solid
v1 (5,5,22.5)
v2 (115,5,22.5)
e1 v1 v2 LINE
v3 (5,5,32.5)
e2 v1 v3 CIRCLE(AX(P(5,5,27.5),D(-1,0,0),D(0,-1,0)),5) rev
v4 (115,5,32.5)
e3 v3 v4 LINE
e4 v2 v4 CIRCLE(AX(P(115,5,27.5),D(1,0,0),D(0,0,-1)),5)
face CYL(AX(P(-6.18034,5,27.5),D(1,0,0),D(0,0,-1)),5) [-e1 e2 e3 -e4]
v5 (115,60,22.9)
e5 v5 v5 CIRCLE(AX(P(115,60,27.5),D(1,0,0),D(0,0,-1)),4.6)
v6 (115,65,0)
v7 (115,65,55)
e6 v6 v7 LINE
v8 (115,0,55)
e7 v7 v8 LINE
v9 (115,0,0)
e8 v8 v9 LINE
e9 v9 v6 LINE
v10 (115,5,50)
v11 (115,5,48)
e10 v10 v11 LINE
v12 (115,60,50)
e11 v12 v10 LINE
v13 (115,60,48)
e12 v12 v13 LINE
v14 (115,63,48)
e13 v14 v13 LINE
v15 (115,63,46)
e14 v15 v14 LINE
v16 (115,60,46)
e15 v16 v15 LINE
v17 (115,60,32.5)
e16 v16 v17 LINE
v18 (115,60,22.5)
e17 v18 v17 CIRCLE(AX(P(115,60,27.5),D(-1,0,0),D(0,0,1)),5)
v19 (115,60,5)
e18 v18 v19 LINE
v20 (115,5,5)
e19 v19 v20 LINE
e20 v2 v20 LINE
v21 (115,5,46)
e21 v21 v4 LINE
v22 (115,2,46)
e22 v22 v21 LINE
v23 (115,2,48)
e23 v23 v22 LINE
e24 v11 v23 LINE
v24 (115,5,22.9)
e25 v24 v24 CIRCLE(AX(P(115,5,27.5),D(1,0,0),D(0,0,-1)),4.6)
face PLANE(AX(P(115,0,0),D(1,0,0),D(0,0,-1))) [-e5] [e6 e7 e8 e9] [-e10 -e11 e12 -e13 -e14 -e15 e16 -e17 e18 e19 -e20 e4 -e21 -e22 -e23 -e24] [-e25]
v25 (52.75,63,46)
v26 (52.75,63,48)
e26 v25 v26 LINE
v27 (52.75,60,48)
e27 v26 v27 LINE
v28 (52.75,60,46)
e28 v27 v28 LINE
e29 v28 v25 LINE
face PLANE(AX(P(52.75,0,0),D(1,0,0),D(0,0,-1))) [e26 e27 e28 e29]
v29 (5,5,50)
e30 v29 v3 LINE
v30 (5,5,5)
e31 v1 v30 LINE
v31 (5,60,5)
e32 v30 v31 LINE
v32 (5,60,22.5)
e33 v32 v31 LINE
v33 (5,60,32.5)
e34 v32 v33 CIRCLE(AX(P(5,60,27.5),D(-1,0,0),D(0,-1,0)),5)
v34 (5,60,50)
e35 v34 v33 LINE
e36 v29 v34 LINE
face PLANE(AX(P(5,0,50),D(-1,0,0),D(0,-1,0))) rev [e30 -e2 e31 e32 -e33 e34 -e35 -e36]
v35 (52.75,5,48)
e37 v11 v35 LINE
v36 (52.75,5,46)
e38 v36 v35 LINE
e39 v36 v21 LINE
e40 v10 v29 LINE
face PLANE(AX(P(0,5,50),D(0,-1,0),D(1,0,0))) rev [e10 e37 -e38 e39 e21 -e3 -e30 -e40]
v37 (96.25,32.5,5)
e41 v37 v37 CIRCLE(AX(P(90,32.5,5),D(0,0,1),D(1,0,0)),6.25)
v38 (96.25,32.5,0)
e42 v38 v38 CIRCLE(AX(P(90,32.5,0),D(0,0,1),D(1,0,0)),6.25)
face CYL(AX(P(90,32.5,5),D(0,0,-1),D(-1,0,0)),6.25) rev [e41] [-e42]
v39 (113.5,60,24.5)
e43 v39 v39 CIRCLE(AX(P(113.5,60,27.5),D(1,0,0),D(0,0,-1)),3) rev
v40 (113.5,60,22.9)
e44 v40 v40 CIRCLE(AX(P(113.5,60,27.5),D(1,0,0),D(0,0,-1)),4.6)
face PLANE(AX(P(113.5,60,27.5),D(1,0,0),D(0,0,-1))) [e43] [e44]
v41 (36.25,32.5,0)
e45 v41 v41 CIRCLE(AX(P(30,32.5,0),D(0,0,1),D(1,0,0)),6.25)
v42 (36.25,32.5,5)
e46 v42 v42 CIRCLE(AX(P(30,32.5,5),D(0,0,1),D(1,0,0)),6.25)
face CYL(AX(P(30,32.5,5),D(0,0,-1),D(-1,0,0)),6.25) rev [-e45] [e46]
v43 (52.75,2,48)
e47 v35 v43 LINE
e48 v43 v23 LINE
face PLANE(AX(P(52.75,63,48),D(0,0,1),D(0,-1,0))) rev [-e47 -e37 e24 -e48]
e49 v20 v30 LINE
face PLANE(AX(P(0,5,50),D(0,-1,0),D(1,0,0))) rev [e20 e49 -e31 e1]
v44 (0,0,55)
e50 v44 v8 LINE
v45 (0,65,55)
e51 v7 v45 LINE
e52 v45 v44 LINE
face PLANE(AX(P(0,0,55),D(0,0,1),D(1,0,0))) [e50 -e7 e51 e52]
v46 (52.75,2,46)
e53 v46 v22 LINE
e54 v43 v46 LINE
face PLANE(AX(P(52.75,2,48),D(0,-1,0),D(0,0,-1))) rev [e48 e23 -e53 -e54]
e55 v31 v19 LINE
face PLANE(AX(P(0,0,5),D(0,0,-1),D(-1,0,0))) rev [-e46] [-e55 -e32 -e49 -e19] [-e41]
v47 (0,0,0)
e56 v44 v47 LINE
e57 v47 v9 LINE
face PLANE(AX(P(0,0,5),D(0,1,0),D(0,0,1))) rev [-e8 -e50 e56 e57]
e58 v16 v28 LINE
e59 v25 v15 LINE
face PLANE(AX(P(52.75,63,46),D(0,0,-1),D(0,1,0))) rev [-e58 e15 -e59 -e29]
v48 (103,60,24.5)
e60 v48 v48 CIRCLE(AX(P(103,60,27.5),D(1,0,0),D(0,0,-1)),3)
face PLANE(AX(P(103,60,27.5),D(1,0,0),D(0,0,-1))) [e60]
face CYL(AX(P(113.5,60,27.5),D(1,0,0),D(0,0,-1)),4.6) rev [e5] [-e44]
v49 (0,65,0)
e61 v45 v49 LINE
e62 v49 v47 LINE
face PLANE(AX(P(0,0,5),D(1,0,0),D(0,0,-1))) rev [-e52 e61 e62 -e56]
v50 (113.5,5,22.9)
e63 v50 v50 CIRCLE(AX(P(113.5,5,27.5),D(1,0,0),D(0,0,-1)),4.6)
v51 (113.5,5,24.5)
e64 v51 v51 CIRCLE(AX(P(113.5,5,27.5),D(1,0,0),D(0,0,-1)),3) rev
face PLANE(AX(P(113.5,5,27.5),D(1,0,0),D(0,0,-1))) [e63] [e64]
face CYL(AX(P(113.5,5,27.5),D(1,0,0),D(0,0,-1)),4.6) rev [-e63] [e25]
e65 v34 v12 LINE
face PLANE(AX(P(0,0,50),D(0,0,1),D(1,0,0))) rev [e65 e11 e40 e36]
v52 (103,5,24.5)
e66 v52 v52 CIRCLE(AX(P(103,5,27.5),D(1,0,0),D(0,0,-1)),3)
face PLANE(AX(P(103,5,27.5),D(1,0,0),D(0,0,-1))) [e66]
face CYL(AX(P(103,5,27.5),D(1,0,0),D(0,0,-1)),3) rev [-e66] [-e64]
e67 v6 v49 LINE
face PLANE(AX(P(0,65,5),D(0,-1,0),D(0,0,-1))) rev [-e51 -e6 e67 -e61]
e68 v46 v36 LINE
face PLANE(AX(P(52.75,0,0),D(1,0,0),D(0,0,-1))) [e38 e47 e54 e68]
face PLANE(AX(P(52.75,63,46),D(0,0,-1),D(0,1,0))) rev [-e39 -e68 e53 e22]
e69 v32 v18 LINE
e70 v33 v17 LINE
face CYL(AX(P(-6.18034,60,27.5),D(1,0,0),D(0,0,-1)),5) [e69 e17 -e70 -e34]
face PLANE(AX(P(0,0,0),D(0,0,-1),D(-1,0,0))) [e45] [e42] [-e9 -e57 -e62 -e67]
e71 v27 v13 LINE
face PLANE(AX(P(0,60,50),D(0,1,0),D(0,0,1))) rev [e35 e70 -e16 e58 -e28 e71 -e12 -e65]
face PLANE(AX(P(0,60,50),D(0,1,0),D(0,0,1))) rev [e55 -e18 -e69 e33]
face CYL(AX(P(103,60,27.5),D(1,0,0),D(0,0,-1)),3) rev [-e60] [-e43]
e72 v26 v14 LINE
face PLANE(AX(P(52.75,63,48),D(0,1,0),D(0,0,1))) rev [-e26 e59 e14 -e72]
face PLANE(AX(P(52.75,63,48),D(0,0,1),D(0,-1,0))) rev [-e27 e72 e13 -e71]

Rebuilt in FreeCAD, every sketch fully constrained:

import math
import FreeCAD as App
import Part
import Sketcher

V = App.Vector


def add_polygon(sketch, points):
    """Adds a closed chain of lines whose ends are joined by coincident constraints."""
    first, n = sketch.GeometryCount, len(points)
    for a, b in zip(points, points[1:] + points[:1]):
        sketch.addGeometry(Part.LineSegment(App.Vector(*a, 0), App.Vector(*b, 0)), False)
    for i in range(n):
        sketch.addConstraint(Sketcher.Constraint("Coincident", first + i, 2, first + (i + 1) % n, 1))

doc = App.newDocument("Part")
body = doc.addObject("PartDesign::Body", "Body")

# Sketch on XY plane
sketch1 = body.newObject("Sketcher::SketchObject", "Sketch")
sketch1.AttachmentSupport = (doc.getObject("XY_Plane"), [""])
sketch1.MapMode = "FlatFace"
add_polygon(sketch1, [(0, 65), (0, 0), (120, 0), (120, 65)])  # lines 0-3
sketch1.addGeometry(Part.Circle(V(30, 32, 0), V(0, 0, 1), 6), False)  # 4
sketch1.addGeometry(Part.Circle(V(90, 32, 0), V(0, 0, 1), 6), False)  # 5
sketch1.addConstraint(Sketcher.Constraint("Vertical", 0))
sketch1.addConstraint(Sketcher.Constraint("Horizontal", 1))
sketch1.addConstraint(Sketcher.Constraint("Vertical", 2))
sketch1.addConstraint(Sketcher.Constraint("Horizontal", 3))
sketch1.addConstraint(Sketcher.Constraint("Coincident", 0, 2, -1, 1))
sketch1.addConstraint(Sketcher.Constraint("Equal", 4, 5))
sketch1.addConstraint(Sketcher.Constraint("Horizontal", 4, 3, 5, 3))
sketch1.addConstraint(Sketcher.Constraint("Diameter", 4, 12.5))
sketch1.addConstraint(Sketcher.Constraint("DistanceX", 1, 1, 1, 2, 120.0))
sketch1.addConstraint(Sketcher.Constraint("DistanceY", 0, 2, 0, 1, 65.0))
sketch1.addConstraint(Sketcher.Constraint("DistanceX", -1, 1, 4, 3, 30.0))
sketch1.addConstraint(Sketcher.Constraint("DistanceX", -1, 1, 5, 3, 90.0))
sketch1.addConstraint(Sketcher.Constraint("DistanceY", -1, 1, 4, 3, 32.5))
pad1 = body.newObject("PartDesign::Pad", "Pad")
pad1.Profile = sketch1
pad1.Length = 5

# Sketch on XY plane
sketch2 = body.newObject("Sketcher::SketchObject", "Sketch001")
sketch2.AttachmentSupport = (doc.getObject("XY_Plane"), [""])
sketch2.MapMode = "FlatFace"
sketch2.AttachmentOffset = App.Placement(V(0, 0, 5), App.Rotation())
add_polygon(sketch2, [(0, 65), (0, 0), (120, 0), (120, 65)])  # lines 0-3
add_polygon(sketch2, [(115, 5), (5, 5), (5, 60), (115, 60)])  # lines 4-7
sketch2.addConstraint(Sketcher.Constraint("Vertical", 0))
sketch2.addConstraint(Sketcher.Constraint("Horizontal", 1))
sketch2.addConstraint(Sketcher.Constraint("Vertical", 2))
sketch2.addConstraint(Sketcher.Constraint("Horizontal", 3))
sketch2.addConstraint(Sketcher.Constraint("Horizontal", 4))
sketch2.addConstraint(Sketcher.Constraint("Vertical", 5))
sketch2.addConstraint(Sketcher.Constraint("Horizontal", 6))
sketch2.addConstraint(Sketcher.Constraint("Vertical", 7))
sketch2.addConstraint(Sketcher.Constraint("Coincident", 0, 2, -1, 1))
sketch2.addConstraint(Sketcher.Constraint("DistanceX", 1, 1, 1, 2, 120.0))
sketch2.addConstraint(Sketcher.Constraint("DistanceX", 4, 2, 4, 1, 110.0))
sketch2.addConstraint(Sketcher.Constraint("DistanceY", 0, 2, 0, 1, 65.0))
sketch2.addConstraint(Sketcher.Constraint("DistanceY", 5, 1, 5, 2, 55.0))
sketch2.addConstraint(Sketcher.Constraint("DistanceX", -1, 1, 4, 2, 5.0))
sketch2.addConstraint(Sketcher.Constraint("DistanceY", -1, 1, 4, 2, 5.0))
pad2 = body.newObject("PartDesign::Pad", "Pad001")
pad2.Profile = sketch2
pad2.Length = 45

# Sketch on XY plane
sketch3 = body.newObject("Sketcher::SketchObject", "Sketch002")
sketch3.AttachmentSupport = (doc.getObject("XY_Plane"), [""])
sketch3.MapMode = "FlatFace"
sketch3.AttachmentOffset = App.Placement(V(0, 0, 50), App.Rotation())
add_polygon(sketch3, [(0, 65), (0, 0), (120, 0), (120, 65)])  # lines 0-3
sketch3.addConstraint(Sketcher.Constraint("Vertical", 0))
sketch3.addConstraint(Sketcher.Constraint("Horizontal", 1))
sketch3.addConstraint(Sketcher.Constraint("Vertical", 2))
sketch3.addConstraint(Sketcher.Constraint("Horizontal", 3))
sketch3.addConstraint(Sketcher.Constraint("Coincident", 0, 2, -1, 1))
sketch3.addConstraint(Sketcher.Constraint("DistanceX", 1, 1, 1, 2, 120.0))
sketch3.addConstraint(Sketcher.Constraint("DistanceY", 0, 2, 0, 1, 65.0))
pad3 = body.newObject("PartDesign::Pad", "Pad002")
pad3.Profile = sketch3
pad3.Length = 5

# Sketch on YZ plane
sketch4 = body.newObject("Sketcher::SketchObject", "Sketch003")
sketch4.AttachmentSupport = (doc.getObject("YZ_Plane"), [""])
sketch4.MapMode = "FlatFace"
sketch4.AttachmentOffset = App.Placement(V(0, 0, 120), App.Rotation())
add_polygon(sketch4, [(65, 55), (0, 55), (0, 0), (65, 0)])  # lines 0-3
sketch4.addConstraint(Sketcher.Constraint("Horizontal", 0))
sketch4.addConstraint(Sketcher.Constraint("Vertical", 1))
sketch4.addConstraint(Sketcher.Constraint("Horizontal", 2))
sketch4.addConstraint(Sketcher.Constraint("Vertical", 3))
sketch4.addConstraint(Sketcher.Constraint("Coincident", 1, 2, -1, 1))
sketch4.addConstraint(Sketcher.Constraint("DistanceX", 0, 2, 0, 1, 65.0))
sketch4.addConstraint(Sketcher.Constraint("DistanceY", 1, 2, 1, 1, 55.0))
pocket1 = body.newObject("PartDesign::Pocket", "Pocket")
pocket1.Profile = sketch4
pocket1.Length = 5

# Sketch on YZ plane
sketch5 = body.newObject("Sketcher::SketchObject", "Sketch004")
sketch5.AttachmentSupport = (doc.getObject("YZ_Plane"), [""])
sketch5.MapMode = "FlatFace"
sketch5.AttachmentOffset = App.Placement(V(0, 0, 115), App.Rotation())
add_polygon(sketch5, [(63, 48), (2, 48), (2, 46), (63, 46)])  # lines 0-3
sketch5.addConstraint(Sketcher.Constraint("Horizontal", 0))
sketch5.addConstraint(Sketcher.Constraint("Vertical", 1))
sketch5.addConstraint(Sketcher.Constraint("Horizontal", 2))
sketch5.addConstraint(Sketcher.Constraint("Vertical", 3))
sketch5.addConstraint(Sketcher.Constraint("DistanceX", 0, 2, 0, 1, 61.0))
sketch5.addConstraint(Sketcher.Constraint("DistanceY", 1, 2, 1, 1, 2.0))
sketch5.addConstraint(Sketcher.Constraint("DistanceX", -1, 1, 0, 2, 2.0))
sketch5.addConstraint(Sketcher.Constraint("DistanceY", -1, 1, 0, 2, 48.0))
pocket2 = body.newObject("PartDesign::Pocket", "Pocket001")
pocket2.Profile = sketch5
pocket2.Length = 62.25

# Sketch on YZ plane
sketch6 = body.newObject("Sketcher::SketchObject", "Sketch005")
sketch6.AttachmentSupport = (doc.getObject("YZ_Plane"), [""])
sketch6.MapMode = "FlatFace"
sketch6.AttachmentOffset = App.Placement(V(0, 0, 115), App.Rotation())
sketch6.addGeometry(Part.LineSegment(V(60, 22, 0), V(60, 32, 0)), False)
sketch6.addGeometry(Part.ArcOfCircle(Part.Circle(V(60, 28, 0), V(0, 0, 1), 5), math.radians(90), math.radians(270)), False)
sketch6.addGeometry(Part.LineSegment(V(5, 32, 0), V(5, 22, 0)), False)
sketch6.addGeometry(Part.ArcOfCircle(Part.Circle(V(5, 28, 0), V(0, 0, 1), 5), math.radians(-90), math.radians(90)), False)
sketch6.addConstraint(Sketcher.Constraint("Coincident", 0, 1, 1, 2))
sketch6.addConstraint(Sketcher.Constraint("Coincident", 1, 1, 0, 2))
sketch6.addConstraint(Sketcher.Constraint("Coincident", 2, 1, 3, 2))
sketch6.addConstraint(Sketcher.Constraint("Coincident", 3, 1, 2, 2))
sketch6.addConstraint(Sketcher.Constraint("Vertical", 0))
sketch6.addConstraint(Sketcher.Constraint("Vertical", 2))
sketch6.addConstraint(Sketcher.Constraint("Equal", 1, 3))
sketch6.addConstraint(Sketcher.Constraint("Horizontal", 1, 3, 3, 3))
sketch6.addConstraint(Sketcher.Constraint("Vertical", 1, 3, 0, 1))
sketch6.addConstraint(Sketcher.Constraint("Vertical", 3, 3, 2, 1))
sketch6.addConstraint(Sketcher.Constraint("Radius", 1, 5.0))
sketch6.addConstraint(Sketcher.Constraint("DistanceX", -1, 1, 1, 3, 60.0))
sketch6.addConstraint(Sketcher.Constraint("DistanceX", -1, 1, 3, 3, 5.0))
sketch6.addConstraint(Sketcher.Constraint("DistanceY", -1, 1, 1, 3, 27.5))
pad4 = body.newObject("PartDesign::Pad", "Pad003")
pad4.Profile = sketch6
pad4.Length = 110
pad4.Reversed = True

# Sketch on YZ plane
sketch7 = body.newObject("Sketcher::SketchObject", "Sketch006")
sketch7.AttachmentSupport = (doc.getObject("YZ_Plane"), [""])
sketch7.MapMode = "FlatFace"
sketch7.AttachmentOffset = App.Placement(V(0, 0, 115), App.Rotation())
sketch7.addGeometry(Part.Circle(V(60, 27.5, 0), V(0, 0, 1), 3), False)
sketch7.addGeometry(Part.Circle(V(5, 27.5, 0), V(0, 0, 1), 3), False)
sketch7.addConstraint(Sketcher.Constraint("Equal", 0, 1))
sketch7.addConstraint(Sketcher.Constraint("Horizontal", 0, 3, 1, 3))
sketch7.addConstraint(Sketcher.Constraint("Diameter", 0, 6.0))
sketch7.addConstraint(Sketcher.Constraint("DistanceX", -1, 1, 0, 3, 60.0))
sketch7.addConstraint(Sketcher.Constraint("DistanceX", -1, 1, 1, 3, 5.0))
sketch7.addConstraint(Sketcher.Constraint("DistanceY", -1, 1, 0, 3, 27.5))
pocket3 = body.newObject("PartDesign::Pocket", "Pocket002")
pocket3.Profile = sketch7
pocket3.Length = 12

# Sketch on YZ plane
sketch8 = body.newObject("Sketcher::SketchObject", "Sketch007")
sketch8.AttachmentSupport = (doc.getObject("YZ_Plane"), [""])
sketch8.MapMode = "FlatFace"
sketch8.AttachmentOffset = App.Placement(V(0, 0, 115), App.Rotation())
sketch8.addGeometry(Part.Circle(V(60, 27.5, 0), V(0, 0, 1), 4.6), False)
sketch8.addGeometry(Part.Circle(V(5, 27.5, 0), V(0, 0, 1), 4.6), False)
sketch8.addConstraint(Sketcher.Constraint("Equal", 0, 1))
sketch8.addConstraint(Sketcher.Constraint("Horizontal", 0, 3, 1, 3))
sketch8.addConstraint(Sketcher.Constraint("Diameter", 0, 9.2))
sketch8.addConstraint(Sketcher.Constraint("DistanceX", -1, 1, 0, 3, 60.0))
sketch8.addConstraint(Sketcher.Constraint("DistanceX", -1, 1, 1, 3, 5.0))
sketch8.addConstraint(Sketcher.Constraint("DistanceY", -1, 1, 0, 3, 27.5))
pocket4 = body.newObject("PartDesign::Pocket", "Pocket003")
pocket4.Profile = sketch8
pocket4.Length = 1.5

doc.recompute()
